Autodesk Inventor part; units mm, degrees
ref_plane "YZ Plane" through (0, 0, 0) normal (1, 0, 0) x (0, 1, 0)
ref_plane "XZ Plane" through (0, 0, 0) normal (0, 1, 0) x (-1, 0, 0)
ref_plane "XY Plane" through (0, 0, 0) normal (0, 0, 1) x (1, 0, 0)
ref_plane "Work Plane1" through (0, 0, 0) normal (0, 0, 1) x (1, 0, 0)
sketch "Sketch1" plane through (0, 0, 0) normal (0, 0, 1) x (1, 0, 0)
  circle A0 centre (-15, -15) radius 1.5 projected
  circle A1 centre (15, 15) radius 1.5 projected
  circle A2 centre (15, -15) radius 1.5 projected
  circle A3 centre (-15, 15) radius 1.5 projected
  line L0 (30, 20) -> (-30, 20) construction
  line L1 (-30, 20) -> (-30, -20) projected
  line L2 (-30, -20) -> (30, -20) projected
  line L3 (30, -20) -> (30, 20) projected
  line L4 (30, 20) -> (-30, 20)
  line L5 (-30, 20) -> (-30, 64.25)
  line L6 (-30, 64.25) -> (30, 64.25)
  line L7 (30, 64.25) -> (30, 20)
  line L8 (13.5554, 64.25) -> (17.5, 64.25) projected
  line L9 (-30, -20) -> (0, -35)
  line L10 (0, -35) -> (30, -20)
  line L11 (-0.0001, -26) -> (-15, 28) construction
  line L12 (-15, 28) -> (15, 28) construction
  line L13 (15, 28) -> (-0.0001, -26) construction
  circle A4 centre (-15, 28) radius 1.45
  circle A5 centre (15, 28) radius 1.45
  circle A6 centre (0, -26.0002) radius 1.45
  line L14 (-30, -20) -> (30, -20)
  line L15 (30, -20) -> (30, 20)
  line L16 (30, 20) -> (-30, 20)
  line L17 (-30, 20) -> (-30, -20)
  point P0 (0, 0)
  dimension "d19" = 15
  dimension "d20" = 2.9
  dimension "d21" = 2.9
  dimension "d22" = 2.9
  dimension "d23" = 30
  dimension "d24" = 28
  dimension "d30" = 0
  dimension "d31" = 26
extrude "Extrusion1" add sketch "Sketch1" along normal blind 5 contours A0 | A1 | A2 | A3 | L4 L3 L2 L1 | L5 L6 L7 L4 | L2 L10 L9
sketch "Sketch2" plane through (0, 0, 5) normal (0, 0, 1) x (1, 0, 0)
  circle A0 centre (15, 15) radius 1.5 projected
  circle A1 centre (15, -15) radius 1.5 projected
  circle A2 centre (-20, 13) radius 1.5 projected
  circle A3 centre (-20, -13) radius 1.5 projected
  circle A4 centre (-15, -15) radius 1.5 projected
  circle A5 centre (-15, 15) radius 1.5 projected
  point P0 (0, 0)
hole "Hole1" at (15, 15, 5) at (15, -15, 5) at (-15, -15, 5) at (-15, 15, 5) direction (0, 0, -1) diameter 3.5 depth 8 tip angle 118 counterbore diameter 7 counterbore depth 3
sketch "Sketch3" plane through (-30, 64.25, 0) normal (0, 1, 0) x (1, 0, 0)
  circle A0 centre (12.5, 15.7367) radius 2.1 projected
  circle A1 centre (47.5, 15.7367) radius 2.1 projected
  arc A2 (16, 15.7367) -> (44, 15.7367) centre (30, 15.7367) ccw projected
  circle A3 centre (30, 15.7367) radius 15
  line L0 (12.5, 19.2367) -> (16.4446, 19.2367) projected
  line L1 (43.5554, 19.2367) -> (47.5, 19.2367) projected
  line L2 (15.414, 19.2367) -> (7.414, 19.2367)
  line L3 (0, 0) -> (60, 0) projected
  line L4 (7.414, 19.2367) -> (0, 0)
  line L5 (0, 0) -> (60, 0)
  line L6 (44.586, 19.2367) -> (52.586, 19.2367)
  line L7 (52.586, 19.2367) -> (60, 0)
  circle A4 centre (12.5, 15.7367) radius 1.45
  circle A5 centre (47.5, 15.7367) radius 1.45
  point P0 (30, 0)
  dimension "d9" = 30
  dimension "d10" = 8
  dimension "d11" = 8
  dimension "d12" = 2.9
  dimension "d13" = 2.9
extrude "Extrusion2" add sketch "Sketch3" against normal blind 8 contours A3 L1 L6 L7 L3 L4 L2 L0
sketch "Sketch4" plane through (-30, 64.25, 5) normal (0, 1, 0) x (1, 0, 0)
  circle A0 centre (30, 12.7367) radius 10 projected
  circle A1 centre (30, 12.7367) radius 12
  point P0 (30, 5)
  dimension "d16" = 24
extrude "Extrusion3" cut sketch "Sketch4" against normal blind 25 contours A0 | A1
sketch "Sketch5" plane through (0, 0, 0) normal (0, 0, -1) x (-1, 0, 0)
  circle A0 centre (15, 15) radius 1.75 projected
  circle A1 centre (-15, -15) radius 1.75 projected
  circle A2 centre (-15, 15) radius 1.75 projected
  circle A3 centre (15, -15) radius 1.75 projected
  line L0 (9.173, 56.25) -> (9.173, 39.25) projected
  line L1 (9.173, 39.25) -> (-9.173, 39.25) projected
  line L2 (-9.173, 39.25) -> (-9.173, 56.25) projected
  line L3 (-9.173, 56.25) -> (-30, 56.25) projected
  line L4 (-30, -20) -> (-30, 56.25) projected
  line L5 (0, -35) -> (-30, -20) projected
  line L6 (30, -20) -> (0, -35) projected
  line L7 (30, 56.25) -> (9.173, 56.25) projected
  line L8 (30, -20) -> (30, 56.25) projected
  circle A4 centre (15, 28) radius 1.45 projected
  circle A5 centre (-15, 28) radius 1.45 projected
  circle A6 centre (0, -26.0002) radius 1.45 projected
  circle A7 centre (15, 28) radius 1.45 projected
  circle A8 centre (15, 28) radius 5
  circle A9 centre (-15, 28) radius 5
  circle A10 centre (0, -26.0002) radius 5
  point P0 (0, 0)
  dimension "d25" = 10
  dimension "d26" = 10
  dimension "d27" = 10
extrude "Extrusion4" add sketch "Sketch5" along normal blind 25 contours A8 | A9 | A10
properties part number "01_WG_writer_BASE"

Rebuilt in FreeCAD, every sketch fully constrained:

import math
import FreeCAD as App
import Part
import Sketcher
from FreeCAD import Vector
Q = App.Units.Quantity

doc = App.newDocument("Part")
params = doc.addObject("Spreadsheet::Sheet", "Params")
for row, (alias, value) in enumerate([
    ("sketch1_diameter", "2.9 mm"),
    ("sketch1_height", "84.25 mm"),
    ("pad1_length", "5 mm"),
    ("sketch2_diameter", "3.5 mm"),
    ("hole_diameter", "3.5 mm"),
    ("hole_depth", "8 mm"),
    ("hole_cbore_diameter", "7 mm"),
    ("hole_cbore_depth", "3 mm"),
    ("sketch3_radius", "15 mm"),
    ("sketch3_width", "8 mm"),
    ("sketch3_diameter", "4.2 mm"),
    ("pad2_length", "8 mm"),
    ("sketch4_diameter", "24 mm"),
    ("pocket1_length", "25 mm"),
    ("sketch5_diameter", "10 mm"),
    ("sketch5_diameter2", "2.9 mm"),
    ("pad3_length", "25 mm"),
], start=1):
    params.set(f"A{row}", alias)
    params.set(f"B{row}", "=" + value)
    params.setAlias(f"B{row}", alias)

body = doc.addObject("PartDesign::Body", "Body")

# Sketch on XY plane
sketch1 = doc.addObject("Sketcher::SketchObject", "Sketch")
body.addObject(sketch1)
sketch1.AttachmentSupport = (doc.XY_Plane, [""])
sketch1.MapMode = "FlatFace"
sketch1.addGeometry(Part.LineSegment(Vector(30, -20, 0), Vector(30, 64.25, 0)), False)
sketch1.addGeometry(Part.LineSegment(Vector(30, 64.25, 0), Vector(-30, 64.25, 0)), False)
sketch1.addGeometry(Part.LineSegment(Vector(-30, 64.25, 0), Vector(-30, -20, 0)), False)
sketch1.addGeometry(Part.LineSegment(Vector(-30, -20, 0), Vector(0, -35, 0)), False)
sketch1.addGeometry(Part.LineSegment(Vector(0, -35, 0), Vector(30, -20, 0)), False)
sketch1.addGeometry(Part.Circle(Vector(15, 28, 0), Vector(0, 0, 1), 1.45), False)
sketch1.addGeometry(Part.Circle(Vector(-15, 28, 0), Vector(0, 0, 1), 1.45), False)
sketch1.addGeometry(Part.Circle(Vector(0, -26.0002, 0), Vector(0, 0, 1), 1.45), False)
sketch1.addConstraint(Sketcher.Constraint("Coincident", 0, 2, 1, 1))
sketch1.addConstraint(Sketcher.Constraint("Coincident", 1, 2, 2, 1))
sketch1.addConstraint(Sketcher.Constraint("Coincident", 2, 2, 3, 1))
sketch1.addConstraint(Sketcher.Constraint("Coincident", 3, 2, 4, 1))
sketch1.addConstraint(Sketcher.Constraint("Coincident", 4, 2, 0, 1))
sketch1.addConstraint(Sketcher.Constraint("Vertical", 0))
sketch1.addConstraint(Sketcher.Constraint("Horizontal", 1))
sketch1.addConstraint(Sketcher.Constraint("Vertical", 2))
sketch1.addConstraint(Sketcher.Constraint("Equal", 5, 6))
sketch1.addConstraint(Sketcher.Constraint("Equal", 6, 7))
sketch1.addConstraint(Sketcher.Constraint("Symmetric", 5, 3, 6, 3, -2))
sketch1.addConstraint(Sketcher.Constraint("Symmetric", 2, 2, 4, 2, -2))
sketch1.addConstraint(Sketcher.Constraint("PointOnObject", 7, 3, -2))
sketch1.addConstraint(Sketcher.Constraint("PointOnObject", 3, 2, -2))
sketch1.addConstraint(Sketcher.Constraint("Diameter", 5, Q("2.9 mm")))
sketch1.addConstraint(Sketcher.Constraint("DistanceX", -1, 1, 5, 3, Q("15 mm")))
sketch1.addConstraint(Sketcher.Constraint("DistanceY", -1, 1, 5, 3, Q("28 mm")))
sketch1.addConstraint(Sketcher.Constraint("DistanceX", -1, 1, 0, 2, Q("30 mm")))
sketch1.addConstraint(Sketcher.Constraint("DistanceY", 3, 2, 2, 2, Q("15 mm")))
sketch1.addConstraint(Sketcher.Constraint("DistanceY", 2, 2, -1, 1, Q("20 mm")))
sketch1.addConstraint(Sketcher.Constraint("DistanceY", 0, 1, 0, 2, Q("84.25 mm")))
sketch1.addConstraint(Sketcher.Constraint("DistanceY", 7, 3, -1, 1, Q("26.0002 mm")))
sketch1.setExpression("Constraints[14]", "Params.sketch1_diameter")
sketch1.setExpression("Constraints[20]", "Params.sketch1_height")
pad1 = doc.addObject("PartDesign::Pad", "Pad")
body.addObject(pad1)
pad1.Profile = sketch1
pad1.setExpression("Length", "Params.pad1_length")

# Sketch on XY plane
sketch2 = doc.addObject("Sketcher::SketchObject", "Sketch001")
body.addObject(sketch2)
sketch2.AttachmentSupport = (doc.XY_Plane, [""])
sketch2.MapMode = "FlatFace"
sketch2.AttachmentOffset = App.Placement(Vector(0, 0, 5), App.Rotation())
sketch2.addGeometry(Part.Circle(Vector(15, 15, 0), Vector(0, 0, 1), 1.75), False)
sketch2.addGeometry(Part.Circle(Vector(15, -15, 0), Vector(0, 0, 1), 1.75), False)
sketch2.addGeometry(Part.Circle(Vector(-15, -15, 0), Vector(0, 0, 1), 1.75), False)
sketch2.addGeometry(Part.Circle(Vector(-15, 15, 0), Vector(0, 0, 1), 1.75), False)
sketch2.addConstraint(Sketcher.Constraint("Equal", 0, 1))
sketch2.addConstraint(Sketcher.Constraint("Equal", 1, 2))
sketch2.addConstraint(Sketcher.Constraint("Equal", 2, 3))
sketch2.addConstraint(Sketcher.Constraint("Symmetric", 0, 3, 2, 3, -1, 1))
sketch2.addConstraint(Sketcher.Constraint("Symmetric", 1, 3, 3, 3, -1, 1))
sketch2.addConstraint(Sketcher.Constraint("Symmetric", 1, 3, 2, 3, -2))
sketch2.addConstraint(Sketcher.Constraint("Diameter", 0, Q("3.5 mm")))
sketch2.addConstraint(Sketcher.Constraint("DistanceX", -1, 1, 0, 3, Q("15 mm")))
sketch2.addConstraint(Sketcher.Constraint("DistanceY", -1, 1, 0, 3, Q("15 mm")))
sketch2.setExpression("Constraints[6]", "Params.sketch2_diameter")
doc.recompute()
hole = doc.addObject("PartDesign::Hole", "Hole")
body.addObject(hole)
hole.Profile = sketch2
hole.ThreadType = "None"
hole.setExpression("Diameter", "Params.hole_diameter")
hole.DepthType = "Dimension"
hole.setExpression("Depth", "Params.hole_depth")
hole.DrillPoint = "Angled"
hole.DrillPointAngle = 118
hole.HoleCutType = "Counterbore"
hole.setExpression("HoleCutDiameter", "Params.hole_cbore_diameter")
hole.setExpression("HoleCutDepth", "Params.hole_cbore_depth")

# Sketch on XZ plane
sketch3 = doc.addObject("Sketcher::SketchObject", "Sketch002")
body.addObject(sketch3)
sketch3.AttachmentSupport = (doc.XZ_Plane, [""])
sketch3.MapMode = "FlatFace"
sketch3.AttachmentOffset = App.Placement(Vector(0, 0, -64.25), App.Rotation())
sketch3.addGeometry(Part.ArcOfCircle(Part.Circle(Vector(0, -15.7367, 0), Vector(0, 0, 1), 15), math.radians(-13.493356), math.radians(193.493356)), False)
sketch3.addGeometry(Part.LineSegment(Vector(-14.586, -19.2367, 0), Vector(-22.586, -19.2367, 0)), False)
sketch3.addGeometry(Part.LineSegment(Vector(-22.586, -19.2367, 0), Vector(-30, 0, 0)), False)
sketch3.addGeometry(Part.LineSegment(Vector(-30, 0, 0), Vector(30, 0, 0)), False)
sketch3.addGeometry(Part.LineSegment(Vector(30, 0, 0), Vector(22.586, -19.2367, 0)), False)
sketch3.addGeometry(Part.LineSegment(Vector(22.586, -19.2367, 0), Vector(14.586, -19.2367, 0)), False)
sketch3.addGeometry(Part.Circle(Vector(-17.5, -15.7367, 0), Vector(0, 0, 1), 2.1), False)
sketch3.addGeometry(Part.Circle(Vector(17.5, -15.7367, 0), Vector(0, 0, 1), 2.1), False)
sketch3.addConstraint(Sketcher.Constraint("Coincident", 0, 2, 1, 1))
sketch3.addConstraint(Sketcher.Constraint("Coincident", 1, 2, 2, 1))
sketch3.addConstraint(Sketcher.Constraint("Coincident", 2, 2, 3, 1))
sketch3.addConstraint(Sketcher.Constraint("Coincident", 3, 2, 4, 1))
sketch3.addConstraint(Sketcher.Constraint("Coincident", 4, 2, 5, 1))
sketch3.addConstraint(Sketcher.Constraint("Coincident", 5, 2, 0, 1))
sketch3.addConstraint(Sketcher.Constraint("Horizontal", 1))
sketch3.addConstraint(Sketcher.Constraint("Horizontal", 3))
sketch3.addConstraint(Sketcher.Constraint("Horizontal", 5))
sketch3.addConstraint(Sketcher.Constraint("Equal", 6, 7))
sketch3.addConstraint(Sketcher.Constraint("Symmetric", 2, 2, 3, 2, -1, 1))
sketch3.addConstraint(Sketcher.Constraint("Symmetric", 6, 3, 7, 3, -2))
sketch3.addConstraint(Sketcher.Constraint("Symmetric", 1, 2, 4, 2, -2))
sketch3.addConstraint(Sketcher.Constraint("PointOnObject", 0, 3, -2))
sketch3.addConstraint(Sketcher.Constraint("Horizontal", 0, 3, 6, 3))
sketch3.addConstraint(Sketcher.Constraint("Radius", 0, Q("15 mm")))
sketch3.addConstraint(Sketcher.Constraint("DistanceX", 1, 2, 1, 1, Q("8 mm")))
sketch3.addConstraint(Sketcher.Constraint("DistanceX", 2, 2, -1, 1, Q("30 mm")))
sketch3.addConstraint(Sketcher.Constraint("Diameter", 6, Q("4.2 mm")))
sketch3.addConstraint(Sketcher.Constraint("DistanceX", 6, 3, 7, 3, Q("35 mm")))
sketch3.addConstraint(Sketcher.Constraint("DistanceY", 0, 2, 6, 3, Q("3.5 mm")))
sketch3.addConstraint(Sketcher.Constraint("Distance", 2, Q("20.616 mm")))
sketch3.setExpression("Constraints[15]", "Params.sketch3_radius")
sketch3.setExpression("Constraints[16]", "Params.sketch3_width")
sketch3.setExpression("Constraints[18]", "Params.sketch3_diameter")
pad2 = doc.addObject("PartDesign::Pad", "Pad001")
body.addObject(pad2)
pad2.Profile = sketch3
pad2.setExpression("Length", "Params.pad2_length")

# Sketch on XZ plane
sketch4 = doc.addObject("Sketcher::SketchObject", "Sketch003")
body.addObject(sketch4)
sketch4.AttachmentSupport = (doc.XZ_Plane, [""])
sketch4.MapMode = "FlatFace"
sketch4.AttachmentOffset = App.Placement(Vector(0, 0, -64.25), App.Rotation())
sketch4.addGeometry(Part.Circle(Vector(0, -7.7367, 0), Vector(0, 0, 1), 12), False)
sketch4.addConstraint(Sketcher.Constraint("PointOnObject", 0, 3, -2))
sketch4.addConstraint(Sketcher.Constraint("Diameter", 0, Q("24 mm")))
sketch4.addConstraint(Sketcher.Constraint("DistanceY", 0, 3, -1, 1, Q("7.7367 mm")))
sketch4.setExpression("Constraints[1]", "Params.sketch4_diameter")
pocket1 = doc.addObject("PartDesign::Pocket", "Pocket")
body.addObject(pocket1)
pocket1.Profile = sketch4
pocket1.setExpression("Length", "Params.pocket1_length")
pocket1.Reversed = True

# Sketch on XY plane
sketch5 = doc.addObject("Sketcher::SketchObject", "Sketch004")
body.addObject(sketch5)
sketch5.AttachmentSupport = (doc.XY_Plane, [""])
sketch5.MapMode = "FlatFace"
sketch5.addGeometry(Part.Circle(Vector(-15, 28, 0), Vector(0, 0, 1), 5), False)
sketch5.addGeometry(Part.Circle(Vector(-15, 28, 0), Vector(0, 0, 1), 1.45), False)
sketch5.addGeometry(Part.Circle(Vector(15, 28, 0), Vector(0, 0, 1), 5), False)
sketch5.addGeometry(Part.Circle(Vector(15, 28, 0), Vector(0, 0, 1), 1.45), False)
sketch5.addGeometry(Part.Circle(Vector(0, -26.0002, 0), Vector(0, 0, 1), 5), False)
sketch5.addGeometry(Part.Circle(Vector(0, -26.0002, 0), Vector(0, 0, 1), 1.45), False)
sketch5.addConstraint(Sketcher.Constraint("Coincident", 1, 3, 0, 3))
sketch5.addConstraint(Sketcher.Constraint("Coincident", 3, 3, 2, 3))
sketch5.addConstraint(Sketcher.Constraint("Coincident", 5, 3, 4, 3))
sketch5.addConstraint(Sketcher.Constraint("Equal", 0, 2))
sketch5.addConstraint(Sketcher.Constraint("Equal", 1, 3))
sketch5.addConstraint(Sketcher.Constraint("Equal", 2, 4))
sketch5.addConstraint(Sketcher.Constraint("Equal", 3, 5))
sketch5.addConstraint(Sketcher.Constraint("Symmetric", 0, 3, 2, 3, -2))
sketch5.addConstraint(Sketcher.Constraint("PointOnObject", 4, 3, -2))
sketch5.addConstraint(Sketcher.Constraint("Diameter", 0, Q("10 mm")))
sketch5.addConstraint(Sketcher.Constraint("Diameter", 1, Q("2.9 mm")))
sketch5.addConstraint(Sketcher.Constraint("DistanceX", 0, 3, -1, 1, Q("15 mm")))
sketch5.addConstraint(Sketcher.Constraint("DistanceY", -1, 1, 0, 3, Q("28 mm")))
sketch5.addConstraint(Sketcher.Constraint("DistanceY", 4, 3, -1, 1, Q("26.0002 mm")))
sketch5.setExpression("Constraints[9]", "Params.sketch5_diameter")
sketch5.setExpression("Constraints[10]", "Params.sketch5_diameter2")
pad3 = doc.addObject("PartDesign::Pad", "Pad002")
body.addObject(pad3)
pad3.Profile = sketch5
pad3.setExpression("Length", "Params.pad3_length")
pad3.Reversed = True

doc.recompute()
